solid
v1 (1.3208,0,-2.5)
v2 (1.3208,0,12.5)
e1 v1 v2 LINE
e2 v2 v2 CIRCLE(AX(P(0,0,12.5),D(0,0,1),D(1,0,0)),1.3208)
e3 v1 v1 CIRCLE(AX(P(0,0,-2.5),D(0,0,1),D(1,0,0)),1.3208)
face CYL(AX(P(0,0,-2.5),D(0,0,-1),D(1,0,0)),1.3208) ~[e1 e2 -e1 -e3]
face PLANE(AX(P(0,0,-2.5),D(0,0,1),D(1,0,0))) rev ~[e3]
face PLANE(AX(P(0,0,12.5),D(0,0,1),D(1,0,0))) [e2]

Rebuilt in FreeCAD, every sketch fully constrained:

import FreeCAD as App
import Part
import Sketcher
from FreeCAD import Vector
Q = App.Units.Quantity

doc = App.newDocument("Part")
body = doc.addObject("PartDesign::Body", "Body")

sketch1 = body.newObject("Sketcher::SketchObject", "Sketch")
sketch1.AttachmentSupport = (doc.getObject("XY_Plane"), [""])
sketch1.MapMode = "FlatFace"
sketch1.AttachmentOffset = App.Placement(Vector(0, 0, -2.5), App.Rotation())
sketch1.addGeometry(Part.Circle(Vector(0, 0, 0), Vector(0, 0, 1), 1.3208), False)
sketch1.addConstraint([
    Sketcher.Constraint("Coincident", 0, 3, -1, 1),
    Sketcher.Constraint("Diameter", 0, Q("2.6416 mm")),
])
pad1 = body.newObject("PartDesign::Pad", "Pad")
pad1.Profile = sketch1
pad1.Length = 15

doc.recompute()
